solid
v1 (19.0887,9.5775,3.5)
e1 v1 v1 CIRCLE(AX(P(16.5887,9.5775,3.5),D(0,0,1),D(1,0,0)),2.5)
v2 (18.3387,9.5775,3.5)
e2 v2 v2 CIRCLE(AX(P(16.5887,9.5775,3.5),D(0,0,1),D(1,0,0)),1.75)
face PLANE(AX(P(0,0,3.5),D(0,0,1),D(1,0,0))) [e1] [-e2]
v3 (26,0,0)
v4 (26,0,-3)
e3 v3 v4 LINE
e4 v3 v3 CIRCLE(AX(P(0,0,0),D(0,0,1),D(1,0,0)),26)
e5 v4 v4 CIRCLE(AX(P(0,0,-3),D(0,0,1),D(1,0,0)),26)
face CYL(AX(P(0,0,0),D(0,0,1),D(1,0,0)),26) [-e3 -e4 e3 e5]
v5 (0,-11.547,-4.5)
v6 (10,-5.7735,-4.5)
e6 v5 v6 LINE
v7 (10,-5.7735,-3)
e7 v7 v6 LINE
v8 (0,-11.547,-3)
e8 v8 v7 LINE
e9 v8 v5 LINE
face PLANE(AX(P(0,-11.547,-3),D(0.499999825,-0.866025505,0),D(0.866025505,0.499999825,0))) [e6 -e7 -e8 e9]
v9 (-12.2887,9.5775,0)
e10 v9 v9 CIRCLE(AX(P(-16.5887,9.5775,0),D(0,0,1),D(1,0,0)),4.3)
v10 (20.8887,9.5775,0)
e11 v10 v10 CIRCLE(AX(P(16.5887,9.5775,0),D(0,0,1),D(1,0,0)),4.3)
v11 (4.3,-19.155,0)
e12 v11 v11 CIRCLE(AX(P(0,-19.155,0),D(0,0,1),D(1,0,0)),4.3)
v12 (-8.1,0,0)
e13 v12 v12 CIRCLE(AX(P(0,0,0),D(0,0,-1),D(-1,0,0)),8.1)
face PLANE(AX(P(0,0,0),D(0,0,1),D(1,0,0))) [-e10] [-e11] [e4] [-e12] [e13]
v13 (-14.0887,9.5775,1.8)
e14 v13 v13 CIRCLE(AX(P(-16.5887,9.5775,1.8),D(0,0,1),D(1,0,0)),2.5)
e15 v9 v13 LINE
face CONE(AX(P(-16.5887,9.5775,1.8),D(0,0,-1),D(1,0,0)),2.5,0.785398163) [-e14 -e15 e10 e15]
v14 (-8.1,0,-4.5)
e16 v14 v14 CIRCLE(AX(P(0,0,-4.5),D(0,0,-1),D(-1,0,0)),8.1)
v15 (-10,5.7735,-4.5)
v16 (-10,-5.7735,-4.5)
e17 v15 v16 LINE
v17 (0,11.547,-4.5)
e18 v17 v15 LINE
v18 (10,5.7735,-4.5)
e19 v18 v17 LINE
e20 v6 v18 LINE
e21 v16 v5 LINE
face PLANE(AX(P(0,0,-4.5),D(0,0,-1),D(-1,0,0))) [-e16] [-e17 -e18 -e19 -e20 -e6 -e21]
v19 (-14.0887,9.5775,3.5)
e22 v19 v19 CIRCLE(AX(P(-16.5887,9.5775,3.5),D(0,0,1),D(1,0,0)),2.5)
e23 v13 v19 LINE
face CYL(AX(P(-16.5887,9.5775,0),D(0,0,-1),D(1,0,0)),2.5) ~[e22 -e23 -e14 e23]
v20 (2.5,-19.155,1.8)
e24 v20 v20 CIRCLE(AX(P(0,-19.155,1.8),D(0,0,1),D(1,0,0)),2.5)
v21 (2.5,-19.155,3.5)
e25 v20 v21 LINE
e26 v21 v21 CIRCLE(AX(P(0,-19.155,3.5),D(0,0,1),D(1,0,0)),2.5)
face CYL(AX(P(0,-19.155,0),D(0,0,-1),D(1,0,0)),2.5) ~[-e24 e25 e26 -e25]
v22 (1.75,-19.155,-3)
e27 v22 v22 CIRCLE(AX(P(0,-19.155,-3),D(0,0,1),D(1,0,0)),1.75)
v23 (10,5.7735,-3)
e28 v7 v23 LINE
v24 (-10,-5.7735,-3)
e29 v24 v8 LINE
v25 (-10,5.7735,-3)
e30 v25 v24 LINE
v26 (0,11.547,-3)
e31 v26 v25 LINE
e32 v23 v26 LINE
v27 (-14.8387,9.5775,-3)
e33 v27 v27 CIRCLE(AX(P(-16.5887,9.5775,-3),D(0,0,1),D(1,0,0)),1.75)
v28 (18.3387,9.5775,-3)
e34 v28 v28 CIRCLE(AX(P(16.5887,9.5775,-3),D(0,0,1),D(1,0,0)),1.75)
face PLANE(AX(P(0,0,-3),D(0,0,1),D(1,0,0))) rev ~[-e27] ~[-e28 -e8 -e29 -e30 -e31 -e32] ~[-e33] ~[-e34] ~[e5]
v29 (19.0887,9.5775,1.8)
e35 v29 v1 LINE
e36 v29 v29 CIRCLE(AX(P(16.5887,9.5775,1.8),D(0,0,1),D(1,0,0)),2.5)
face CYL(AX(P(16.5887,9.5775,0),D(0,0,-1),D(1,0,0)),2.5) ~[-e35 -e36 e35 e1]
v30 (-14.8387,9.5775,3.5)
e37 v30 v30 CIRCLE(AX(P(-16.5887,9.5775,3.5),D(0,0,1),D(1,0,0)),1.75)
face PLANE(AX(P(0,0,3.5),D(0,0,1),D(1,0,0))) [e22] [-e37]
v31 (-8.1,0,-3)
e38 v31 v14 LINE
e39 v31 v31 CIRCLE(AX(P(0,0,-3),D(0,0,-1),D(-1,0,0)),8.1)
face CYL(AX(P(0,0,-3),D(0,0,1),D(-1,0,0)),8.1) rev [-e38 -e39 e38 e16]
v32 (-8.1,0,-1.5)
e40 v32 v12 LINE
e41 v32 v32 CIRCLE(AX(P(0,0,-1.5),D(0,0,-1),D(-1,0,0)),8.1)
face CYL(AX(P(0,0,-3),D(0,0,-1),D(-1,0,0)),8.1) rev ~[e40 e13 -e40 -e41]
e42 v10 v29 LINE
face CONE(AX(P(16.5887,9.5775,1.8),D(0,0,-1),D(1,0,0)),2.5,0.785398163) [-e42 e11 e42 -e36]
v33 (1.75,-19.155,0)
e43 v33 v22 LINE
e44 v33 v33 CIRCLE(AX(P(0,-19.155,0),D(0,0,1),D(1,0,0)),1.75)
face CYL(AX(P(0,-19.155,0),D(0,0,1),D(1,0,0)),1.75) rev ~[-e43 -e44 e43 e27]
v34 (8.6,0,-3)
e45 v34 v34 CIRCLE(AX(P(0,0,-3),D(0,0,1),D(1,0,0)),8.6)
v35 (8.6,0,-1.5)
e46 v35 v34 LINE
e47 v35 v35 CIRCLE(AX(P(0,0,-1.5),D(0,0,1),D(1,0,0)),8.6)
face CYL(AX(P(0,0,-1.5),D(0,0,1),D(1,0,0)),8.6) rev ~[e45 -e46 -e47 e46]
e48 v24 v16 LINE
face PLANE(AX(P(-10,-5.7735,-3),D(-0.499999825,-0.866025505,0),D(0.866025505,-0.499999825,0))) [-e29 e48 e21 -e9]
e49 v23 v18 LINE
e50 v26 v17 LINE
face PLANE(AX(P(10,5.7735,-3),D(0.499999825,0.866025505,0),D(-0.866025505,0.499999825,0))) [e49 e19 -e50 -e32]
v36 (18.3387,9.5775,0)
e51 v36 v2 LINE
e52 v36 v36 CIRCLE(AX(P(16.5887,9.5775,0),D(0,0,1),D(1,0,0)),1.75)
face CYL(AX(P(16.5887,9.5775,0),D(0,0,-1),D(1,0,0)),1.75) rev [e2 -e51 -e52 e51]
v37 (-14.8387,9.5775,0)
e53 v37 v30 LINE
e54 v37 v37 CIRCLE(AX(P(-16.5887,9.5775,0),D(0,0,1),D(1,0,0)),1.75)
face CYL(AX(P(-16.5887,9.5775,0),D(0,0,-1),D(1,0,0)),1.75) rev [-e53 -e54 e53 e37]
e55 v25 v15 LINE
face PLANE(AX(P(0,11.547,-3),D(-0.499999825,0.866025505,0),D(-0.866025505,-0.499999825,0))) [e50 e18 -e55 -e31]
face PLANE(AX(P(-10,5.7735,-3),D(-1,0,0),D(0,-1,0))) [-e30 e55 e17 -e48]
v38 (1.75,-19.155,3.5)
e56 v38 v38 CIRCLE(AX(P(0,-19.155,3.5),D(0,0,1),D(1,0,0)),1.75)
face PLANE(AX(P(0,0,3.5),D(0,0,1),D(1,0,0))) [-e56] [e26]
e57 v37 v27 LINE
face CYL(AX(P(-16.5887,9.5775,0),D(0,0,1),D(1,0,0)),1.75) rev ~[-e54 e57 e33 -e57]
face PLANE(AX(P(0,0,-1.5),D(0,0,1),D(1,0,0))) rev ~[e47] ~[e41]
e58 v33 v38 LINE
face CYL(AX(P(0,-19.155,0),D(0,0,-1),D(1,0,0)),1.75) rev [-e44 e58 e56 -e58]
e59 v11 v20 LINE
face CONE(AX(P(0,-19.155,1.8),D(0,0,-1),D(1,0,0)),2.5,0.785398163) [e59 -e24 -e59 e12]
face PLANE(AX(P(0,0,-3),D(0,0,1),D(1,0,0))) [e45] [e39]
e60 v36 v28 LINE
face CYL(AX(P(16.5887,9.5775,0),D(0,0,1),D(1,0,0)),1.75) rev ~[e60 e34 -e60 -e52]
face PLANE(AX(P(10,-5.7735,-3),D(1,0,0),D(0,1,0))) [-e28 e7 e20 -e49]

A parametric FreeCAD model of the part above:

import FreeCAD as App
import Part
import Sketcher
from FreeCAD import Vector
Q = App.Units.Quantity


def edges_at(feature, points):
    """Names of the edges that pass closest to the given points."""
    edges = feature.Shape.Edges
    near = lambda p: min(range(len(edges)), key=lambda i: edges[i].distToShape(Part.Vertex(*p))[0])
    return sorted({f"Edge{near(p) + 1}" for p in points})

doc = App.newDocument("Part")
body = doc.addObject("PartDesign::Body", "Body")

# Sketch on XY plane
sketch1 = doc.addObject("Sketcher::SketchObject", "Sketch")
body.addObject(sketch1)
sketch1.AttachmentSupport = (doc.XY_Plane, [""])
sketch1.MapMode = "FlatFace"
sketch1.addGeometry(Part.Circle(Vector(0, 0, 0), Vector(0, 0, 1), 26), False)
sketch1.addConstraint([
    Sketcher.Constraint("Coincident", 0, 3, -1, 1),
    Sketcher.Constraint("Diameter", 0, Q("52 mm")),
])
pad1 = doc.addObject("PartDesign::Pad", "Pad")
body.addObject(pad1)
pad1.Profile = sketch1
pad1.Length = 3
pad1.Reversed = True

# Sketch on XY plane
sketch2 = doc.addObject("Sketcher::SketchObject", "Sketch001")
body.addObject(sketch2)
sketch2.AttachmentSupport = (doc.XY_Plane, [""])
sketch2.MapMode = "FlatFace"
sketch2.addGeometry([
    Part.Circle(Vector(0, -19.2, 0), Vector(0, 0, 1), 2.5),  # 0
    Part.Circle(Vector(0, -19.2, 0), Vector(0, 0, 1), 1.8),  # 1
    Part.Circle(Vector(16.6, 9.6, 0), Vector(0, 0, 1), 2.5),  # 2
    Part.Circle(Vector(16.6, 9.6, 0), Vector(0, 0, 1), 1.8),  # 3
    Part.Circle(Vector(-16.6, 9.6, 0), Vector(0, 0, 1), 2.5),  # 4
    Part.Circle(Vector(-16.6, 9.6, 0), Vector(0, 0, 1), 1.8),  # 5
], False)
sketch2.addConstraint([
    Sketcher.Constraint("Coincident", 1, 3, 0, 3),
    Sketcher.Constraint("Coincident", 3, 3, 2, 3),
    Sketcher.Constraint("Coincident", 5, 3, 4, 3),
    Sketcher.Constraint("Equal", 0, 2),
    Sketcher.Constraint("Equal", 1, 3),
    Sketcher.Constraint("Equal", 2, 4),
    Sketcher.Constraint("Equal", 3, 5),
    Sketcher.Constraint("Symmetric", 2, 3, 4, 3, -2),
    Sketcher.Constraint("PointOnObject", 0, 3, -2),
    Sketcher.Constraint("Diameter", 0, Q("5 mm")),
    Sketcher.Constraint("Diameter", 1, Q("3.5 mm")),
    Sketcher.Constraint("DistanceY", 0, 3, -1, 1, Q("19.155 mm")),
    Sketcher.Constraint("DistanceX", -1, 1, 2, 3, Q("16.5887 mm")),
    Sketcher.Constraint("DistanceY", -1, 1, 2, 3, Q("9.5775 mm")),
])
pad2 = doc.addObject("PartDesign::Pad", "Pad001")
body.addObject(pad2)
pad2.Profile = sketch2
pad2.Length = 3.5
doc.recompute()

chamfer = doc.addObject("PartDesign::Chamfer", "Chamfer")
body.addObject(chamfer)
chamfer.Base = (pad2, edges_at(pad2, [(14.089, 9.578, 0), (-19.089, 9.578, 0), (-2.5, -19.155, 0)]))
chamfer.Size = 1.8

# Sketch on XY plane
sketch3 = doc.addObject("Sketcher::SketchObject", "Sketch002")
body.addObject(sketch3)
sketch3.AttachmentSupport = (doc.XY_Plane, [""])
sketch3.MapMode = "FlatFace"
sketch3.AttachmentOffset = App.Placement(Vector(0, 0, -3), App.Rotation())
sketch3.addGeometry(Part.Circle(Vector(0, 0, 0), Vector(0, 0, 1), 8), False)
sketch3.addConstraint([
    Sketcher.Constraint("Coincident", 0, 3, -1, 1),
    Sketcher.Constraint("Diameter", 0, Q("16.2 mm")),
])
pocket1 = doc.addObject("PartDesign::Pocket", "Pocket")
body.addObject(pocket1)
pocket1.Profile = sketch3
pocket1.Type = "UpToFirst"
pocket1.Reversed = True

# Sketch on XY plane
sketch4 = doc.addObject("Sketcher::SketchObject", "Sketch003")
body.addObject(sketch4)
sketch4.AttachmentSupport = (doc.XY_Plane, [""])
sketch4.MapMode = "FlatFace"
sketch4.addGeometry([
    Part.Circle(Vector(0, -19.2, 0), Vector(0, 0, 1), 1.8),
    Part.Circle(Vector(16.6, 9.6, 0), Vector(0, 0, 1), 1.8),
    Part.Circle(Vector(-16.6, 9.6, 0), Vector(0, 0, 1), 1.8),
], False)
sketch4.addConstraint([
    Sketcher.Constraint("Equal", 0, 1),
    Sketcher.Constraint("Equal", 1, 2),
    Sketcher.Constraint("Symmetric", 1, 3, 2, 3, -2),
    Sketcher.Constraint("PointOnObject", 0, 3, -2),
    Sketcher.Constraint("Diameter", 0, Q("3.5 mm")),
    Sketcher.Constraint("DistanceY", 0, 3, -1, 1, Q("19.155 mm")),
    Sketcher.Constraint("DistanceX", -1, 1, 1, 3, Q("16.5887 mm")),
    Sketcher.Constraint("DistanceY", -1, 1, 1, 3, Q("9.5775 mm")),
])
pocket2 = doc.addObject("PartDesign::Pocket", "Pocket001")
body.addObject(pocket2)
pocket2.Profile = sketch4
pocket2.Type = "ThroughAll"

# Sketch on XY plane
sketch5 = doc.addObject("Sketcher::SketchObject", "Sketch004")
body.addObject(sketch5)
sketch5.AttachmentSupport = (doc.XY_Plane, [""])
sketch5.MapMode = "FlatFace"
sketch5.AttachmentOffset = App.Placement(Vector(0, 0, -3), App.Rotation())
sketch5.addGeometry([
    Part.LineSegment(Vector(-10, -6, 0), Vector(-10, 6, 0)),  # 0
    Part.LineSegment(Vector(-10, 6, 0), Vector(0, 12, 0)),  # 1
    Part.LineSegment(Vector(0, 12, 0), Vector(10, 6, 0)),  # 2
    Part.LineSegment(Vector(10, 6, 0), Vector(10, -6, 0)),  # 3
    Part.LineSegment(Vector(10, -6, 0), Vector(0, -12, 0)),  # 4
    Part.LineSegment(Vector(0, -12, 0), Vector(-10, -6, 0)),  # 5
    Part.Circle(Vector(0, 0, 0), Vector(0, 0, 1), 8),  # 6
], False)
sketch5.addConstraint([
    Sketcher.Constraint("Coincident", 0, 2, 1, 1),
    Sketcher.Constraint("Coincident", 1, 2, 2, 1),
    Sketcher.Constraint("Coincident", 2, 2, 3, 1),
    Sketcher.Constraint("Coincident", 3, 2, 4, 1),
    Sketcher.Constraint("Coincident", 4, 2, 5, 1),
    Sketcher.Constraint("Coincident", 5, 2, 0, 1),
    Sketcher.Constraint("Vertical", 0),
    Sketcher.Constraint("Vertical", 3),
    Sketcher.Constraint("Coincident", 6, 3, -1, 1),
    Sketcher.Constraint("Symmetric", 0, 2, 3, 2, -1, 1),
    Sketcher.Constraint("Symmetric", 1, 2, 4, 2, -1, 1),
    Sketcher.Constraint("PointOnObject", 1, 2, -2),
    Sketcher.Constraint("Parallel", 2, 5),
    Sketcher.Constraint("Horizontal", 0, 2, 2, 2),
    Sketcher.Constraint("Diameter", 6, Q("16.2 mm")),
    Sketcher.Constraint("DistanceX", 0, 2, -1, 1, Q("10 mm")),
    Sketcher.Constraint("Angle", 1, Q("30 deg")),
    Sketcher.Constraint("DistanceY", 0, 1, 0, 2, Q("11.547 mm")),
])
pad3 = doc.addObject("PartDesign::Pad", "Pad002")
body.addObject(pad3)
pad3.Profile = sketch5
pad3.Length = 1.5
pad3.Reversed = True

# Sketch on XY plane
sketch6 = doc.addObject("Sketcher::SketchObject", "Sketch005")
body.addObject(sketch6)
sketch6.AttachmentSupport = (doc.XY_Plane, [""])
sketch6.MapMode = "FlatFace"
sketch6.AttachmentOffset = App.Placement(Vector(0, 0, -1.5), App.Rotation())
sketch6.addGeometry([
    Part.Circle(Vector(0, 0, 0), Vector(0, 0, 1), 9),
    Part.Circle(Vector(0, 0, 0), Vector(0, 0, 1), 8),
], False)
sketch6.addConstraint([
    Sketcher.Constraint("Coincident", 0, 3, -1, 1),
    Sketcher.Constraint("Coincident", 1, 3, -1, 1),
    Sketcher.Constraint("Diameter", 0, Q("17.2 mm")),
    Sketcher.Constraint("Diameter", 1, Q("16.0936 mm")),
])
pocket3 = doc.addObject("PartDesign::Pocket", "Pocket002")
body.addObject(pocket3)
pocket3.Profile = sketch6
pocket3.Length = 1.5

doc.recompute()
